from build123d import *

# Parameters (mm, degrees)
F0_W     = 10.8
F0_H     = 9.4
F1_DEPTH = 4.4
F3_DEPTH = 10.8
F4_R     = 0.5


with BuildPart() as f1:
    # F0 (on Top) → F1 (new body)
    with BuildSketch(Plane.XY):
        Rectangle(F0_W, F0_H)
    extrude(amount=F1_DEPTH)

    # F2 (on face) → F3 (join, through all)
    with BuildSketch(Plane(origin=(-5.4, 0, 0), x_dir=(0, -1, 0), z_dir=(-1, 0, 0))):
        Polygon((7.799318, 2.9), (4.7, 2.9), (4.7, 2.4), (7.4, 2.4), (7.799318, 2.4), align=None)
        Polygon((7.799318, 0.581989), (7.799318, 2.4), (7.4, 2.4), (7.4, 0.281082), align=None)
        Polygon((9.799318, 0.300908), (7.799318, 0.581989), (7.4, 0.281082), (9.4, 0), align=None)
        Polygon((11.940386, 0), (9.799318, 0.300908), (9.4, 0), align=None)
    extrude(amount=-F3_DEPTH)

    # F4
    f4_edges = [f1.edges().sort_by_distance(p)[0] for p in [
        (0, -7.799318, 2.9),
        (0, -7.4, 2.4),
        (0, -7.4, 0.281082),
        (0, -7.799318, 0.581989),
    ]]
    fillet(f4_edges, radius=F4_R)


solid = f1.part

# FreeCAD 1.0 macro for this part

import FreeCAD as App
import Part
import Sketcher
from FreeCAD import Vector
Q = App.Units.Quantity


def edges_at(feature, points):
    """Names of the edges that pass closest to the given points."""
    edges = feature.Shape.Edges
    near = lambda p: min(range(len(edges)), key=lambda i: edges[i].distToShape(Part.Vertex(*p))[0])
    return sorted({f"Edge{near(p) + 1}" for p in points})

doc = App.newDocument("Part")
body = doc.addObject("PartDesign::Body", "Body")

# Sketch on XY plane
sketch1 = body.newObject("Sketcher::SketchObject", "Sketch")
sketch1.AttachmentSupport = (doc.getObject("XY_Plane"), [""])
sketch1.MapMode = "FlatFace"
sketch1.addGeometry(Part.LineSegment(Vector(-5.4, 4.7, 0), Vector(-5.4, -4.7, 0)), False)
sketch1.addGeometry(Part.LineSegment(Vector(-5.4, -4.7, 0), Vector(5.4, -4.7, 0)), False)
sketch1.addGeometry(Part.LineSegment(Vector(5.4, -4.7, 0), Vector(5.4, 4.7, 0)), False)
sketch1.addGeometry(Part.LineSegment(Vector(5.4, 4.7, 0), Vector(-5.4, 4.7, 0)), False)
sketch1.addConstraint(Sketcher.Constraint("Coincident", 0, 2, 1, 1))
sketch1.addConstraint(Sketcher.Constraint("Coincident", 1, 2, 2, 1))
sketch1.addConstraint(Sketcher.Constraint("Coincident", 2, 2, 3, 1))
sketch1.addConstraint(Sketcher.Constraint("Coincident", 3, 2, 0, 1))
sketch1.addConstraint(Sketcher.Constraint("Vertical", 0))
sketch1.addConstraint(Sketcher.Constraint("Horizontal", 1))
sketch1.addConstraint(Sketcher.Constraint("Vertical", 2))
sketch1.addConstraint(Sketcher.Constraint("Horizontal", 3))
sketch1.addConstraint(Sketcher.Constraint("Symmetric", 0, 2, 2, 2, -1, 1))
sketch1.addConstraint(Sketcher.Constraint("DistanceX", 1, 1, 1, 2, 10.8))
sketch1.addConstraint(Sketcher.Constraint("DistanceY", 0, 2, 0, 1, 9.4))
pad1 = body.newObject("PartDesign::Pad", "Pad")
pad1.Profile = sketch1
pad1.Length = 4.4

# Sketch on YZ plane
sketch2 = body.newObject("Sketcher::SketchObject", "Sketch001")
sketch2.AttachmentSupport = (doc.getObject("YZ_Plane"), [""])
sketch2.MapMode = "FlatFace"
sketch2.AttachmentOffset = App.Placement(Vector(0, 0, -5.4), App.Rotation())
sketch2.addGeometry(Part.LineSegment(Vector(-7.799318, 2.9, 0), Vector(-4.7, 2.9, 0)), False)
sketch2.addGeometry(Part.LineSegment(Vector(-4.7, 2.9, 0), Vector(-4.7, 2.4, 0)), False)
sketch2.addGeometry(Part.LineSegment(Vector(-4.7, 2.4, 0), Vector(-7.4, 2.4, 0)), False)
sketch2.addGeometry(Part.LineSegment(Vector(-7.4, 2.4, 0), Vector(-7.4, 0.281082, 0)), False)
sketch2.addGeometry(Part.LineSegment(Vector(-7.4, 0.281082, 0), Vector(-9.4, 0, 0)), False)
sketch2.addGeometry(Part.LineSegment(Vector(-9.4, 0, 0), Vector(-11.940386, 0, 0)), False)
sketch2.addGeometry(Part.LineSegment(Vector(-11.940386, 0, 0), Vector(-9.799318, 0.300908, 0)), False)
sketch2.addGeometry(Part.LineSegment(Vector(-9.799318, 0.300908, 0), Vector(-7.799318, 0.581989, 0)), False)
sketch2.addGeometry(Part.LineSegment(Vector(-7.799318, 0.581989, 0), Vector(-7.799318, 2.9, 0)), False)
sketch2.addConstraint(Sketcher.Constraint("Coincident", 0, 2, 1, 1))
sketch2.addConstraint(Sketcher.Constraint("Coincident", 1, 2, 2, 1))
sketch2.addConstraint(Sketcher.Constraint("Coincident", 2, 2, 3, 1))
sketch2.addConstraint(Sketcher.Constraint("Coincident", 3, 2, 4, 1))
sketch2.addConstraint(Sketcher.Constraint("Coincident", 4, 2, 5, 1))
sketch2.addConstraint(Sketcher.Constraint("Coincident", 5, 2, 6, 1))
sketch2.addConstraint(Sketcher.Constraint("Coincident", 6, 2, 7, 1))
sketch2.addConstraint(Sketcher.Constraint("Coincident", 7, 2, 8, 1))
sketch2.addConstraint(Sketcher.Constraint("Coincident", 8, 2, 0, 1))
sketch2.addConstraint(Sketcher.Constraint("Horizontal", 0))
sketch2.addConstraint(Sketcher.Constraint("Vertical", 1))
sketch2.addConstraint(Sketcher.Constraint("Horizontal", 2))
sketch2.addConstraint(Sketcher.Constraint("Vertical", 3))
sketch2.addConstraint(Sketcher.Constraint("Horizontal", 5))
sketch2.addConstraint(Sketcher.Constraint("Vertical", 8))
sketch2.addConstraint(Sketcher.Constraint("PointOnObject", 4, 2, -1))
sketch2.addConstraint(Sketcher.Constraint("Parallel", 4, 6))
sketch2.addConstraint(Sketcher.Constraint("Parallel", 6, 7))
sketch2.addConstraint(Sketcher.Constraint("Equal", 4, 7))
sketch2.addConstraint(Sketcher.Constraint("Angle", 4, Q("-171.999991 deg")))
sketch2.addConstraint(Sketcher.Constraint("DistanceX", 2, 2, 2, 1, 2.7))
sketch2.addConstraint(Sketcher.Constraint("DistanceY", 1, 2, 1, 1, 0.5))
sketch2.addConstraint(Sketcher.Constraint("DistanceX", 4, 2, 3, 2, 2.0))
sketch2.addConstraint(Sketcher.Constraint("DistanceX", 0, 2, -1, 1, 4.7))
sketch2.addConstraint(Sketcher.Constraint("DistanceY", -1, 1, 0, 2, 2.9))
sketch2.addConstraint(Sketcher.Constraint("DistanceX", 0, 1, 0, 2, 3.099318))
sketch2.addConstraint(Sketcher.Constraint("DistanceY", 8, 1, 8, 2, 2.318011))
pad2 = body.newObject("PartDesign::Pad", "Pad001")
pad2.Profile = sketch2
pad2.Length = 10.8
doc.recompute()

fillet = body.newObject("PartDesign::Fillet", "Fillet")
fillet.Base = (pad2, edges_at(pad2, [
    (0, -7.799, 2.9),
    (0, -7.4, 2.4),
    (0, -7.4, 0.281),
    (0, -7.799, 0.582),
]))
fillet.Radius = 0.5

doc.recompute()
